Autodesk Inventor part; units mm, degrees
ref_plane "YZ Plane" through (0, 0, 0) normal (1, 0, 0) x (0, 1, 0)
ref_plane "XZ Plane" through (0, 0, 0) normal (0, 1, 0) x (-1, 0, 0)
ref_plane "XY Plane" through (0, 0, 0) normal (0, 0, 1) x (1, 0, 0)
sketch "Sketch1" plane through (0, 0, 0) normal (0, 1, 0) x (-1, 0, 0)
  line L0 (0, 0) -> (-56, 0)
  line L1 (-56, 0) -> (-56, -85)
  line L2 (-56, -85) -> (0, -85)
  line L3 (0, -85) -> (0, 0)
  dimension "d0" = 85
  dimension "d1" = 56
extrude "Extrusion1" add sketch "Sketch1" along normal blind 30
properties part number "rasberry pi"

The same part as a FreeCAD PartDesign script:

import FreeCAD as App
import Part
import Sketcher

V = App.Vector


def add_polygon(sketch, points):
    """Adds a closed chain of lines whose ends are joined by coincident constraints."""
    first, n = sketch.GeometryCount, len(points)
    for a, b in zip(points, points[1:] + points[:1]):
        sketch.addGeometry(Part.LineSegment(App.Vector(*a, 0), App.Vector(*b, 0)), False)
    for i in range(n):
        sketch.addConstraint(Sketcher.Constraint("Coincident", first + i, 2, first + (i + 1) % n, 1))

doc = App.newDocument("Part")
body = doc.addObject("PartDesign::Body", "Body")

# Sketch on XZ plane
sketch1 = body.newObject("Sketcher::SketchObject", "Sketch")
sketch1.AttachmentSupport = (doc.getObject("XZ_Plane"), [""])
sketch1.MapMode = "FlatFace"
add_polygon(sketch1, [(0, -85), (0, 0), (56, 0), (56, -85)])  # lines 0-3
sketch1.addConstraint(Sketcher.Constraint("Vertical", 0))
sketch1.addConstraint(Sketcher.Constraint("Horizontal", 1))
sketch1.addConstraint(Sketcher.Constraint("Vertical", 2))
sketch1.addConstraint(Sketcher.Constraint("Horizontal", 3))
sketch1.addConstraint(Sketcher.Constraint("Coincident", 0, 2, -1, 1))
sketch1.addConstraint(Sketcher.Constraint("DistanceX", 1, 1, 1, 2, 56.0))
sketch1.addConstraint(Sketcher.Constraint("DistanceY", 0, 1, 0, 2, 85.0))
pad1 = body.newObject("PartDesign::Pad", "Pad")
pad1.Profile = sketch1
pad1.Length = 30
pad1.Reversed = True

doc.recompute()
